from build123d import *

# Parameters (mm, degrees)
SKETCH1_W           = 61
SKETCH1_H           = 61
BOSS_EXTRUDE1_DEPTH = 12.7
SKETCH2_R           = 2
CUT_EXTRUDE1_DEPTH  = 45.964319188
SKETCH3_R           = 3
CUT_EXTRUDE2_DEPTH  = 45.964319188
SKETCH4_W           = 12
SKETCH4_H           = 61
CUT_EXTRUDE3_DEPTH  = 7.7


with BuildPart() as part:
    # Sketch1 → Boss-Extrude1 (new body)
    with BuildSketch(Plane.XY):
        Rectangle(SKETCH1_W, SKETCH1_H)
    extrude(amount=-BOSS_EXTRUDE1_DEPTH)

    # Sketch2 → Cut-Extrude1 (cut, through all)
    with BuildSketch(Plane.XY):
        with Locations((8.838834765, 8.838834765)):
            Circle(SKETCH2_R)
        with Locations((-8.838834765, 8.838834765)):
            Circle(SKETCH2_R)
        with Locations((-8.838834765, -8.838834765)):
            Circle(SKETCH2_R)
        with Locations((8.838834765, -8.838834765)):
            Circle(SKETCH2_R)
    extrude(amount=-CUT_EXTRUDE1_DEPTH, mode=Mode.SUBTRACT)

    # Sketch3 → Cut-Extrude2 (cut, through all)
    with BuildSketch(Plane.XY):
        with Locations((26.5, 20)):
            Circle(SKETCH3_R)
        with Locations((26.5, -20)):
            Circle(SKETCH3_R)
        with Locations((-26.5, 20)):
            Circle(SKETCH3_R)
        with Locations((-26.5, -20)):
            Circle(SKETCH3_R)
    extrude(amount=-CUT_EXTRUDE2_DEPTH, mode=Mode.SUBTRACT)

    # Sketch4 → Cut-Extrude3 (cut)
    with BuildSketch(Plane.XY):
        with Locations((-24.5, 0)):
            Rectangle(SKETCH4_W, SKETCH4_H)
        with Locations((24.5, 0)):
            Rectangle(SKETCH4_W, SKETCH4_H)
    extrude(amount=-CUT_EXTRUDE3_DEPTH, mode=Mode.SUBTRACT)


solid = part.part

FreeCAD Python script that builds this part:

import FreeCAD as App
import Part
import Sketcher
from FreeCAD import Vector


def add_polygon(sketch, points):
    """Adds a closed chain of lines whose ends are joined by coincident constraints."""
    first, n = sketch.GeometryCount, len(points)
    for a, b in zip(points, points[1:] + points[:1]):
        sketch.addGeometry(Part.LineSegment(App.Vector(*a, 0), App.Vector(*b, 0)), False)
    for i in range(n):
        sketch.addConstraint(Sketcher.Constraint("Coincident", first + i, 2, first + (i + 1) % n, 1))

doc = App.newDocument("Part")
body = doc.addObject("PartDesign::Body", "Body")

sketch1 = doc.addObject("Sketcher::SketchObject", "Sketch")
body.addObject(sketch1)
sketch1.AttachmentSupport = (doc.XY_Plane, [""])
sketch1.MapMode = "FlatFace"
add_polygon(sketch1, [(-30.5, 30.5), (-30.5, -30.5), (30.5, -30.5), (30.5, 30.5)])
sketch1.addConstraint(Sketcher.Constraint("Vertical", 0))
sketch1.addConstraint(Sketcher.Constraint("Horizontal", 1))
sketch1.addConstraint(Sketcher.Constraint("Vertical", 2))
sketch1.addConstraint(Sketcher.Constraint("Horizontal", 3))
sketch1.addConstraint(Sketcher.Constraint("Symmetric", 0, 2, 2, 2, -1, 1))
sketch1.addConstraint(Sketcher.Constraint("Equal", 3, 0))
sketch1.addConstraint(Sketcher.Constraint("DistanceX", 1, 1, 1, 2, 61.0))
pad1 = doc.addObject("PartDesign::Pad", "Pad")
body.addObject(pad1)
pad1.Profile = sketch1
pad1.Length = 12.7
pad1.Reversed = True

sketch2 = doc.addObject("Sketcher::SketchObject", "Sketch001")
body.addObject(sketch2)
sketch2.AttachmentSupport = (doc.XY_Plane, [""])
sketch2.MapMode = "FlatFace"
sketch2.addGeometry(Part.Circle(Vector(8.838835, 8.838835, 0), Vector(0, 0, 1), 2), False)
sketch2.addGeometry(Part.Circle(Vector(-8.838835, 8.838835, 0), Vector(0, 0, 1), 2), False)
sketch2.addGeometry(Part.Circle(Vector(-8.838835, -8.838835, 0), Vector(0, 0, 1), 2), False)
sketch2.addGeometry(Part.Circle(Vector(8.838835, -8.838835, 0), Vector(0, 0, 1), 2), False)
sketch2.addConstraint(Sketcher.Constraint("Equal", 0, 1))
sketch2.addConstraint(Sketcher.Constraint("Equal", 1, 2))
sketch2.addConstraint(Sketcher.Constraint("Equal", 2, 3))
sketch2.addConstraint(Sketcher.Constraint("Symmetric", 0, 3, 2, 3, -1, 1))
sketch2.addConstraint(Sketcher.Constraint("Symmetric", 1, 3, 3, 3, -1, 1))
sketch2.addConstraint(Sketcher.Constraint("Symmetric", 0, 3, 1, 3, -2))
sketch2.addConstraint(Sketcher.Constraint("Diameter", 0, 4.0))
sketch2.addConstraint(Sketcher.Constraint("DistanceX", 1, 3, 0, 3, 17.67767))
sketch2.addConstraint(Sketcher.Constraint("DistanceY", 2, 3, 1, 3, 17.67767))
pocket1 = doc.addObject("PartDesign::Pocket", "Pocket")
body.addObject(pocket1)
pocket1.Profile = sketch2
pocket1.Type = "ThroughAll"

sketch3 = doc.addObject("Sketcher::SketchObject", "Sketch002")
body.addObject(sketch3)
sketch3.AttachmentSupport = (doc.XY_Plane, [""])
sketch3.MapMode = "FlatFace"
sketch3.addGeometry(Part.Circle(Vector(26.5, 20, 0), Vector(0, 0, 1), 3), False)
sketch3.addGeometry(Part.Circle(Vector(26.5, -20, 0), Vector(0, 0, 1), 3), False)
sketch3.addGeometry(Part.Circle(Vector(-26.5, 20, 0), Vector(0, 0, 1), 3), False)
sketch3.addGeometry(Part.Circle(Vector(-26.5, -20, 0), Vector(0, 0, 1), 3), False)
sketch3.addConstraint(Sketcher.Constraint("Equal", 0, 1))
sketch3.addConstraint(Sketcher.Constraint("Equal", 1, 2))
sketch3.addConstraint(Sketcher.Constraint("Equal", 2, 3))
sketch3.addConstraint(Sketcher.Constraint("Symmetric", 1, 3, 2, 3, -1, 1))
sketch3.addConstraint(Sketcher.Constraint("Symmetric", 0, 3, 3, 3, -1, 1))
sketch3.addConstraint(Sketcher.Constraint("Symmetric", 0, 3, 2, 3, -2))
sketch3.addConstraint(Sketcher.Constraint("Diameter", 0, 6.0))
sketch3.addConstraint(Sketcher.Constraint("DistanceY", -1, 1, 0, 3, 20.0))
sketch3.addConstraint(Sketcher.Constraint("DistanceX", 2, 3, 0, 3, 53.0))
pocket2 = doc.addObject("PartDesign::Pocket", "Pocket001")
body.addObject(pocket2)
pocket2.Profile = sketch3
pocket2.Type = "ThroughAll"

sketch4 = doc.addObject("Sketcher::SketchObject", "Sketch003")
body.addObject(sketch4)
sketch4.AttachmentSupport = (doc.XY_Plane, [""])
sketch4.MapMode = "FlatFace"
add_polygon(sketch4, [(-30.5, 30.5), (-30.5, -30.5), (-18.5, -30.5), (-18.5, 30.5)])
add_polygon(sketch4, [(18.5, 30.5), (18.5, -30.5), (30.5, -30.5), (30.5, 30.5)])
sketch4.addConstraint(Sketcher.Constraint("Vertical", 0))
sketch4.addConstraint(Sketcher.Constraint("Horizontal", 1))
sketch4.addConstraint(Sketcher.Constraint("Vertical", 2))
sketch4.addConstraint(Sketcher.Constraint("Horizontal", 3))
sketch4.addConstraint(Sketcher.Constraint("Vertical", 4))
sketch4.addConstraint(Sketcher.Constraint("Horizontal", 5))
sketch4.addConstraint(Sketcher.Constraint("Vertical", 6))
sketch4.addConstraint(Sketcher.Constraint("Horizontal", 7))
sketch4.addConstraint(Sketcher.Constraint("Symmetric", 2, 2, 4, 2, -1, 1))
sketch4.addConstraint(Sketcher.Constraint("Symmetric", 0, 2, 6, 2, -1, 1))
sketch4.addConstraint(Sketcher.Constraint("Horizontal", 1, 2, 4, 2))
sketch4.addConstraint(Sketcher.Constraint("DistanceX", 1, 1, 1, 2, 12.0))
sketch4.addConstraint(Sketcher.Constraint("DistanceY", 0, 2, 0, 1, 61.0))
sketch4.addConstraint(Sketcher.Constraint("DistanceX", 1, 2, 4, 2, 37.0))
pocket3 = doc.addObject("PartDesign::Pocket", "Pocket002")
body.addObject(pocket3)
pocket3.Profile = sketch4
pocket3.Length = 7.7

doc.recompute()
